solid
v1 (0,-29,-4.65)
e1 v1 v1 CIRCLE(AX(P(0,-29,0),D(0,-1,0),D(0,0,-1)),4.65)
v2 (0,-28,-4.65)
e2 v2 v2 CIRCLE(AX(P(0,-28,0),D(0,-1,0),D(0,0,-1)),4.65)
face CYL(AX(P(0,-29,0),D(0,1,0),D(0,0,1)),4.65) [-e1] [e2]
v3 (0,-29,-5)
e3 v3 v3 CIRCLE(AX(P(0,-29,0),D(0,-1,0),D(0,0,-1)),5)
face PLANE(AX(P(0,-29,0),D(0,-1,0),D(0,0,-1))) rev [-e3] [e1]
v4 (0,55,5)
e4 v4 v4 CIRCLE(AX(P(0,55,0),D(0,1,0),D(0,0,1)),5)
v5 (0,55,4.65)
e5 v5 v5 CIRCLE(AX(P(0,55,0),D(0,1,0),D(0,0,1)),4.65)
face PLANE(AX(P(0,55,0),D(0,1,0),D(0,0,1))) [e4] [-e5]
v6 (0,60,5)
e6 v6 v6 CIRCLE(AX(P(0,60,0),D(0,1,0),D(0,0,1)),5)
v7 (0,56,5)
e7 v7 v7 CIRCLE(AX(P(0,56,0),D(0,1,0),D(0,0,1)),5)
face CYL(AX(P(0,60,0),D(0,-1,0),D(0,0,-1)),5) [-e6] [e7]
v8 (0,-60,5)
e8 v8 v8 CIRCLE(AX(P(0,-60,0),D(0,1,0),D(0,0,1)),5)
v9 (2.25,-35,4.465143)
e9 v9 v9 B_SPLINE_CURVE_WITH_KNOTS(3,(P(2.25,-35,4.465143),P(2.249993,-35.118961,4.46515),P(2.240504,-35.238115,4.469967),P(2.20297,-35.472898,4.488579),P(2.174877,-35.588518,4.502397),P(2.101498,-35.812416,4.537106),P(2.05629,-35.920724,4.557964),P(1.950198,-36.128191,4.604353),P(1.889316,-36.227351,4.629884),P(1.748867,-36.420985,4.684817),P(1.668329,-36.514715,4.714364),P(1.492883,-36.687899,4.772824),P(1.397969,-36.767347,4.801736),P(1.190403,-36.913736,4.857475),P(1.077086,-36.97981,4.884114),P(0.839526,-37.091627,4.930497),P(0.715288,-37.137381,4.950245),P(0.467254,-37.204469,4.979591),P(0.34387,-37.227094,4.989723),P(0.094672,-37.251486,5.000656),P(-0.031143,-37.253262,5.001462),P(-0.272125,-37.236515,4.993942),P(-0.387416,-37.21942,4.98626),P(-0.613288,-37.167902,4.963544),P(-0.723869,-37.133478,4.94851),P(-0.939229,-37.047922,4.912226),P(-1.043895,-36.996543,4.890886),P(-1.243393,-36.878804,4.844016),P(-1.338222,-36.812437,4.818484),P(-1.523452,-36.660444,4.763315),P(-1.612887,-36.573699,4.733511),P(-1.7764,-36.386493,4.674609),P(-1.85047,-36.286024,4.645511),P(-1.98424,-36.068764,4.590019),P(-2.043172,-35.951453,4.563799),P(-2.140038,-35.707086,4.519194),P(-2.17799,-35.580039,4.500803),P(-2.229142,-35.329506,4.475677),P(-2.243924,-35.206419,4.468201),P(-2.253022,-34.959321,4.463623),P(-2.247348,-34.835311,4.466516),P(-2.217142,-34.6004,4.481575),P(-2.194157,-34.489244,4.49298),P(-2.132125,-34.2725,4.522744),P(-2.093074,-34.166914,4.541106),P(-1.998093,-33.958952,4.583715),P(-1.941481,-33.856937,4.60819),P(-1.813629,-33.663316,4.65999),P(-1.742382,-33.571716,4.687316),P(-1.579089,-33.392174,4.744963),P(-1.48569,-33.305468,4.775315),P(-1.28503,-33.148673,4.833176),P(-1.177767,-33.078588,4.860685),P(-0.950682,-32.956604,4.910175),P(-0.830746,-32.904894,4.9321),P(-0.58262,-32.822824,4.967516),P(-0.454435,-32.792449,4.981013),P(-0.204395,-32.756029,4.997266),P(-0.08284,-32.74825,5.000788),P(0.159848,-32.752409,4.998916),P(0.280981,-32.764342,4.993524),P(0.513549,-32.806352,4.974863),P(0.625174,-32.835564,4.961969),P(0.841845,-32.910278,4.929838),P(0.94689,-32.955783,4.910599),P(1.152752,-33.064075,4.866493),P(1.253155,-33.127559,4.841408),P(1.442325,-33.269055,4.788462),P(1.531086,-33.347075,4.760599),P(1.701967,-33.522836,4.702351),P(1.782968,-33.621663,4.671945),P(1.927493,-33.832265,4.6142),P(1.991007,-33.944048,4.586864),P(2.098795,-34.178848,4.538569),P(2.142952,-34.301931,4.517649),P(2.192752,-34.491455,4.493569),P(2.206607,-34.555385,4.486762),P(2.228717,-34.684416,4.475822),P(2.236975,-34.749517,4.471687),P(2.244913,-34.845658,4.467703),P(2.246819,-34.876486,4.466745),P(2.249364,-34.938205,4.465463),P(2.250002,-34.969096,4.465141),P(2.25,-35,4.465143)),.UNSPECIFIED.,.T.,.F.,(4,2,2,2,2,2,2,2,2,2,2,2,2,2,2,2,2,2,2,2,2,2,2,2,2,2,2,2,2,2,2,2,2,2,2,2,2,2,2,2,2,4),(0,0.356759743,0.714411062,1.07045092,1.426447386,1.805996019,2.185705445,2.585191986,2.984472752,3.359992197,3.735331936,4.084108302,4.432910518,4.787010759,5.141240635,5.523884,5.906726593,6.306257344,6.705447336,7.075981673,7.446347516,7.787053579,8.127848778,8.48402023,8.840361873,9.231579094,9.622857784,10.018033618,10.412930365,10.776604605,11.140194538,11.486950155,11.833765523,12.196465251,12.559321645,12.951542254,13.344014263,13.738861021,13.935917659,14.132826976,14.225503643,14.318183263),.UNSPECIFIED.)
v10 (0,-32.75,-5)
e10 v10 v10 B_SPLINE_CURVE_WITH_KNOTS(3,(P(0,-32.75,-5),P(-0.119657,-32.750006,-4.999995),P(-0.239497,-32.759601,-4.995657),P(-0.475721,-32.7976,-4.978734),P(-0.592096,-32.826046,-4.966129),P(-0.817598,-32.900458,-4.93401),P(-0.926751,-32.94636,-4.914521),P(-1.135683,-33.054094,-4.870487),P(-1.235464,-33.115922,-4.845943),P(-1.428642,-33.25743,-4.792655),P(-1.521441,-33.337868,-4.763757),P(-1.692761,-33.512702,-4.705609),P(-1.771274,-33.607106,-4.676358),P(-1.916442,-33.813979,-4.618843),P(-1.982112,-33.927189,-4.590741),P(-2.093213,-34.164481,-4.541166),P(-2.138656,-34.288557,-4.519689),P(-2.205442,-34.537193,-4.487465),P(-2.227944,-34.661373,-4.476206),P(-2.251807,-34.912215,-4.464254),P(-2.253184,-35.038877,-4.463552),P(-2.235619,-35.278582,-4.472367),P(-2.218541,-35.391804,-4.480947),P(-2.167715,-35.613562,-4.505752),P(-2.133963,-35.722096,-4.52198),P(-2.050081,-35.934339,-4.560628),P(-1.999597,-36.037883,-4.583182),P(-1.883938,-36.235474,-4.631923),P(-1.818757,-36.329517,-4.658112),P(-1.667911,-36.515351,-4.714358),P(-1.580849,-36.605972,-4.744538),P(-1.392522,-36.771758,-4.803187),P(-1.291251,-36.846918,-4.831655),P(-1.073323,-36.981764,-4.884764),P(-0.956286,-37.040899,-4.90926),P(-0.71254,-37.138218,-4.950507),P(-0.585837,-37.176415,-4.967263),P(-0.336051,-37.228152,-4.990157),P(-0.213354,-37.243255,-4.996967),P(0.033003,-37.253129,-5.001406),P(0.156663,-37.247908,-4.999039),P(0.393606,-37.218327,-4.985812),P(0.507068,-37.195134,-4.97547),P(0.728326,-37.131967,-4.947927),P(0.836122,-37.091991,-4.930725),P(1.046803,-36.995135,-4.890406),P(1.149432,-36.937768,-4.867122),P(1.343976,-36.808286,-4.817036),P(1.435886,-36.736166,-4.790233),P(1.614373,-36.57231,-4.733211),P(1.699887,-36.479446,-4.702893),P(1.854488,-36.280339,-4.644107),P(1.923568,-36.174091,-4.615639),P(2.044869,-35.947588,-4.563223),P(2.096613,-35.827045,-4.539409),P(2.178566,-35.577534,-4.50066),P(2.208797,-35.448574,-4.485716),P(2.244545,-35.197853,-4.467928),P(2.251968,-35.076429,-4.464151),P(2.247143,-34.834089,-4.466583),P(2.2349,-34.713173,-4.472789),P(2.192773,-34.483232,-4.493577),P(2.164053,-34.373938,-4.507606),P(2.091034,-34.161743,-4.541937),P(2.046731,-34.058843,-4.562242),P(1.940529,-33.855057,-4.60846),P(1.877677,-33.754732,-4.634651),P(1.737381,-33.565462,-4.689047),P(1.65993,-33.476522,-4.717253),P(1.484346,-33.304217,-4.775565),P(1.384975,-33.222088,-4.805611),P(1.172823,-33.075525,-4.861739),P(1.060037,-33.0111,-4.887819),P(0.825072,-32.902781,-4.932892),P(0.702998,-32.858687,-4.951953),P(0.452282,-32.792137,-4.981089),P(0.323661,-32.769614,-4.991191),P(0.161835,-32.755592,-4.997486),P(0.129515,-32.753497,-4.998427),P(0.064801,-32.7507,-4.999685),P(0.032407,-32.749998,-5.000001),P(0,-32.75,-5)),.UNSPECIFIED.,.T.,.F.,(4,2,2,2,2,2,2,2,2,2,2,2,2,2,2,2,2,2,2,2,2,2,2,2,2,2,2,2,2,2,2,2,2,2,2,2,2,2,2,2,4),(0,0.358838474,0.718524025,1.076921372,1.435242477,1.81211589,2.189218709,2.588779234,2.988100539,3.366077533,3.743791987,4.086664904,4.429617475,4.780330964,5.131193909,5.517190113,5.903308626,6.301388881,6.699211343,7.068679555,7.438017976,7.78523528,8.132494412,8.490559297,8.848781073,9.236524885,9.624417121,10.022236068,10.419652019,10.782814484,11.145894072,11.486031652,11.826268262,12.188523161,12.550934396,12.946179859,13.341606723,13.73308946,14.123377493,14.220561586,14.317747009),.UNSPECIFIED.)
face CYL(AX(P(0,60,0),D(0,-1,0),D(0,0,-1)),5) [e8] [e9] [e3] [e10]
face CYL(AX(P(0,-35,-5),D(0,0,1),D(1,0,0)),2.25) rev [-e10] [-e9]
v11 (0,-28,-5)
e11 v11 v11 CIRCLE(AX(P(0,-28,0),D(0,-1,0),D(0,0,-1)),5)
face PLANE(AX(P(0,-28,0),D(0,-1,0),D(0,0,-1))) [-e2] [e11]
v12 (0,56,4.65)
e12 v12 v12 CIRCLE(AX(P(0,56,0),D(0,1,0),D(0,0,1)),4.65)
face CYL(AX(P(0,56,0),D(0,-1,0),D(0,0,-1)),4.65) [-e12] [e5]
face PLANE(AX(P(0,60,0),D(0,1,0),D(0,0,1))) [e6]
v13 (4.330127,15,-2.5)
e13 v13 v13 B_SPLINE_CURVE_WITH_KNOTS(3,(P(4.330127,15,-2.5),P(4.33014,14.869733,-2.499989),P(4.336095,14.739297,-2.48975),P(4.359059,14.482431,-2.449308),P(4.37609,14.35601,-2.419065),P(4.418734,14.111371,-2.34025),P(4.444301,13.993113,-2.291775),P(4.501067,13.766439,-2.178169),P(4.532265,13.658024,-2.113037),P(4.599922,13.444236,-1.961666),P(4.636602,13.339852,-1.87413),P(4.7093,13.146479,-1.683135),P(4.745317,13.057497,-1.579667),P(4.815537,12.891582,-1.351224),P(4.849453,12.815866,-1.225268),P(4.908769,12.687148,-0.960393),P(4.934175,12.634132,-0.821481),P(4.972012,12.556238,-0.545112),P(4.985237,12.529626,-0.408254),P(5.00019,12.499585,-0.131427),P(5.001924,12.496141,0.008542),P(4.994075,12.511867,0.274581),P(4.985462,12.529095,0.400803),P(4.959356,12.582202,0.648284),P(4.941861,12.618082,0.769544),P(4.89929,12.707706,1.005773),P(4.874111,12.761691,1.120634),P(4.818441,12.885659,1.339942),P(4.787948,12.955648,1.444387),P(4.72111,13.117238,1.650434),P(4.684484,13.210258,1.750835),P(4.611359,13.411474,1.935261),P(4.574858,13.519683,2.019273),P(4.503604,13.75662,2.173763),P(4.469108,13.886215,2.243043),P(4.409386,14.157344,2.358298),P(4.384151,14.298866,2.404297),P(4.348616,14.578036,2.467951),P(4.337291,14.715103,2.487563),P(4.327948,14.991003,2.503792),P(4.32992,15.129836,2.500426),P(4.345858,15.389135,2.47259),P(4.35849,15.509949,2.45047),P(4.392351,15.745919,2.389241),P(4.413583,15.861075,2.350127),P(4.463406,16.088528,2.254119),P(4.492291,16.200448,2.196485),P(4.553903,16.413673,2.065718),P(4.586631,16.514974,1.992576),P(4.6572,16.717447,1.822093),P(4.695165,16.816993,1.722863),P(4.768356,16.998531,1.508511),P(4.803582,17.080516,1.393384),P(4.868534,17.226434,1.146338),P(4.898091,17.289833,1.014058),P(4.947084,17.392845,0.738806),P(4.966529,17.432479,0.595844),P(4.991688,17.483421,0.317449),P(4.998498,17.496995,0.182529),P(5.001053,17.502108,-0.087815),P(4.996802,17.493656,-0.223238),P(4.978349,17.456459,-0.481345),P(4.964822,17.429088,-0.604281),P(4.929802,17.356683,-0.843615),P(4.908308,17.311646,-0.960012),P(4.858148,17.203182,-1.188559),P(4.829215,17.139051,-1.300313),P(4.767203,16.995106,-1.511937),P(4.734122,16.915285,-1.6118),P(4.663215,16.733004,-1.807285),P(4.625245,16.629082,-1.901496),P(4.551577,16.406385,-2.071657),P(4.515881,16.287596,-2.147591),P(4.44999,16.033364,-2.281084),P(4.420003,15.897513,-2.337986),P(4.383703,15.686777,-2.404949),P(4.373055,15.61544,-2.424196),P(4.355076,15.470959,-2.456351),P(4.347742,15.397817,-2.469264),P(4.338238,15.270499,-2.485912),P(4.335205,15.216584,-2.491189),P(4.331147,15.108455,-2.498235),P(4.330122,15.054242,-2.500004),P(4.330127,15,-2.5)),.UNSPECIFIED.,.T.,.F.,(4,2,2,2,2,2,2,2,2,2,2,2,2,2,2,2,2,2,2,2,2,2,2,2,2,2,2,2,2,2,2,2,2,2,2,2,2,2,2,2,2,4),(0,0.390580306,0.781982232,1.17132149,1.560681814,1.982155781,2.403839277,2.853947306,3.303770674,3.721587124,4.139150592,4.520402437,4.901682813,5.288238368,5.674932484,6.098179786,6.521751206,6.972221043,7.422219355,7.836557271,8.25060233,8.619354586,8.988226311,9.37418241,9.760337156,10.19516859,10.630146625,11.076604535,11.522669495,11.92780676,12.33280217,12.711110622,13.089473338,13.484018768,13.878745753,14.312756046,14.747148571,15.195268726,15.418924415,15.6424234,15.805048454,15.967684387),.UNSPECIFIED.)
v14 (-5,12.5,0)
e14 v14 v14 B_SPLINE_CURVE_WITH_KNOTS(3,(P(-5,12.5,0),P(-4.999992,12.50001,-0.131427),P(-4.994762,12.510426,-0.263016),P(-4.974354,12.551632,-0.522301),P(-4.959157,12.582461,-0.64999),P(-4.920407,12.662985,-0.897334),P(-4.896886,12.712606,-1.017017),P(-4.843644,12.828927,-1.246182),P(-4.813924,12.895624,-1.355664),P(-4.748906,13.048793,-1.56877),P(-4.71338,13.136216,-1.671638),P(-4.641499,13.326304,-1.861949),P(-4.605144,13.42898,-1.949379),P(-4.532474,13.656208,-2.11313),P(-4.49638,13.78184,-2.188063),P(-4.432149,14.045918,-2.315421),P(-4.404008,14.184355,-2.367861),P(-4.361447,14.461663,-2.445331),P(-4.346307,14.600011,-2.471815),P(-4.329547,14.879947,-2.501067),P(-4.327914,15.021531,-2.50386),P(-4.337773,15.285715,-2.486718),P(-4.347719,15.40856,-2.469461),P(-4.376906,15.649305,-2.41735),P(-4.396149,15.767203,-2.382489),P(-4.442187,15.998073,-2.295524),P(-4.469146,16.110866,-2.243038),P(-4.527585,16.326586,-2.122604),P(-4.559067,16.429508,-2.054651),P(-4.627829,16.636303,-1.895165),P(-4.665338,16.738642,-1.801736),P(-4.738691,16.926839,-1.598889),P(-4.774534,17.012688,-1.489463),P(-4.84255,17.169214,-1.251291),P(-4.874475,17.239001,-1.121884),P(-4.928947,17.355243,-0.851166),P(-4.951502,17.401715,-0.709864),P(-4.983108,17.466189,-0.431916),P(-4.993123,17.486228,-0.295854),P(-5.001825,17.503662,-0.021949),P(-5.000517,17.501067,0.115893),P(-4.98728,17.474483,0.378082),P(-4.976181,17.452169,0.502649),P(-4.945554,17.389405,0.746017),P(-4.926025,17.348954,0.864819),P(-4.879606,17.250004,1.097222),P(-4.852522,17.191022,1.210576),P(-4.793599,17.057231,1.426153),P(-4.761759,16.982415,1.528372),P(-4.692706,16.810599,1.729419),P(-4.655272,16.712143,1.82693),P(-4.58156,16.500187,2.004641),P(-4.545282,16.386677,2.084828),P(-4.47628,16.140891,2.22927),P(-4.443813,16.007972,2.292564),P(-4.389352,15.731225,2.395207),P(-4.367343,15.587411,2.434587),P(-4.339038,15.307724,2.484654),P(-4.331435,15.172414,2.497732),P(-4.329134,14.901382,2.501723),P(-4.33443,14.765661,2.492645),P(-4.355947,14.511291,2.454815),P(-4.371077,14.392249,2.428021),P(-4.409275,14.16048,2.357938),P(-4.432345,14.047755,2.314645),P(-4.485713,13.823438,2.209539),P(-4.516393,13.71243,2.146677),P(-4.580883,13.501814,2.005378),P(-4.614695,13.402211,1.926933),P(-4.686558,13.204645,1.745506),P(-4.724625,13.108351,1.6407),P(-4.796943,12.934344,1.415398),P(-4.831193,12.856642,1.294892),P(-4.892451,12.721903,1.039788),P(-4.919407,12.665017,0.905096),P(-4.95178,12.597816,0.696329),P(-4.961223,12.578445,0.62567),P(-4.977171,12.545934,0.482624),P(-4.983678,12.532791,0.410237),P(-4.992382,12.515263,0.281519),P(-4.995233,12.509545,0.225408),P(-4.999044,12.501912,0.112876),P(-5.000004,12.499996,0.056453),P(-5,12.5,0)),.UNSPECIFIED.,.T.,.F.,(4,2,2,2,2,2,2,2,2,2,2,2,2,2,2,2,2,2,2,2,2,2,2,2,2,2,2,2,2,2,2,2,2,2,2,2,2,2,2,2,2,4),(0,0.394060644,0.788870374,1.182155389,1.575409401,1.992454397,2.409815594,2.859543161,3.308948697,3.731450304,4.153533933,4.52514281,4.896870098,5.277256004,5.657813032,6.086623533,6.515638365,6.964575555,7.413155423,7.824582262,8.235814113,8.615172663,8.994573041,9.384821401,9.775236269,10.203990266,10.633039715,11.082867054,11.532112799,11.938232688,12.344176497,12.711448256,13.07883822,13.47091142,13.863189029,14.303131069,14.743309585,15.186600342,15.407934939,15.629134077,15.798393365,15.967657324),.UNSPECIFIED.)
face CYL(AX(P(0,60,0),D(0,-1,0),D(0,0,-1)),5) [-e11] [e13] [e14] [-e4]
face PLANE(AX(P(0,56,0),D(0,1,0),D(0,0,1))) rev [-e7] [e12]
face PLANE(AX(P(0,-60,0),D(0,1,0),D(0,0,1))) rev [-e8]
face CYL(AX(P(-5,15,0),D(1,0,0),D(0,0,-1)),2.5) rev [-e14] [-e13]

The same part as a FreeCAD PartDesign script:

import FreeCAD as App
import Part
import Sketcher
from FreeCAD import Vector
Q = App.Units.Quantity

doc = App.newDocument("Part")
body = doc.addObject("PartDesign::Body", "Body")

# Sketch on XZ plane
sketch1 = body.newObject("Sketcher::SketchObject", "Sketch")
sketch1.AttachmentSupport = (doc.getObject("XZ_Plane"), [""])
sketch1.MapMode = "FlatFace"
sketch1.addGeometry(Part.Circle(Vector(0, 0, 0), Vector(0, 0, 1), 5), False)
sketch1.addConstraint(Sketcher.Constraint("Coincident", 0, 3, -1, 1))
sketch1.addConstraint(Sketcher.Constraint("Diameter", 0, Q("10 mm")))
pad1 = body.newObject("PartDesign::Pad", "Pad")
pad1.Profile = sketch1
pad1.Length = 120
pad1.Midplane = True

# Sketch on XY plane
sketch2 = body.newObject("Sketcher::SketchObject", "Sketch001")
sketch2.AttachmentSupport = (doc.getObject("XY_Plane"), [""])
sketch2.MapMode = "FlatFace"
sketch2.addGeometry(Part.Circle(Vector(0, -35, 0), Vector(0, 0, 1), 2.25), False)
sketch2.addConstraint(Sketcher.Constraint("PointOnObject", 0, 3, -2))
sketch2.addConstraint(Sketcher.Constraint("Diameter", 0, Q("4.5 mm")))
sketch2.addConstraint(Sketcher.Constraint("DistanceY", 0, 3, -1, 1, Q("35 mm")))
pocket1 = body.newObject("PartDesign::Pocket", "Pocket")
pocket1.Profile = sketch2
pocket1.Type = "ThroughAll"
pocket1.Midplane = True

# Sketch on XZ plane
sketch3 = body.newObject("Sketcher::SketchObject", "Sketch002")
sketch3.AttachmentSupport = (doc.getObject("XZ_Plane"), [""])
sketch3.MapMode = "FlatFace"
sketch3.AttachmentOffset = App.Placement(Vector(0, 0, 28), App.Rotation())
sketch3.addGeometry(Part.Circle(Vector(0, 0, 0), Vector(0, 0, 1), 5), False)
sketch3.addGeometry(Part.Circle(Vector(0, 0, 0), Vector(0, 0, 1), 4.65), False)
sketch3.addConstraint(Sketcher.Constraint("Coincident", 0, 3, -1, 1))
sketch3.addConstraint(Sketcher.Constraint("Coincident", 1, 3, -1, 1))
sketch3.addConstraint(Sketcher.Constraint("Diameter", 0, Q("10 mm")))
sketch3.addConstraint(Sketcher.Constraint("Diameter", 1, Q("9.3 mm")))
pocket2 = body.newObject("PartDesign::Pocket", "Pocket001")
pocket2.Profile = sketch3
pocket2.Length = 1
pocket2.Reversed = True

# Sketch on XZ plane
sketch4 = body.newObject("Sketcher::SketchObject", "Sketch003")
sketch4.AttachmentSupport = (doc.getObject("XZ_Plane"), [""])
sketch4.MapMode = "FlatFace"
sketch4.AttachmentOffset = App.Placement(Vector(0, 0, -56), App.Rotation())
sketch4.addGeometry(Part.Circle(Vector(0, 0, 0), Vector(0, 0, 1), 5), False)
sketch4.addGeometry(Part.Circle(Vector(0, 0, 0), Vector(0, 0, 1), 4.65), False)
sketch4.addConstraint(Sketcher.Constraint("Coincident", 0, 3, -1, 1))
sketch4.addConstraint(Sketcher.Constraint("Coincident", 1, 3, -1, 1))
sketch4.addConstraint(Sketcher.Constraint("Diameter", 0, Q("10 mm")))
sketch4.addConstraint(Sketcher.Constraint("Diameter", 1, Q("9.3 mm")))
pocket3 = body.newObject("PartDesign::Pocket", "Pocket002")
pocket3.Profile = sketch4
pocket3.Length = 1
pocket3.Reversed = True

# Sketch on YZ plane
sketch5 = body.newObject("Sketcher::SketchObject", "Sketch004")
sketch5.AttachmentSupport = (doc.getObject("YZ_Plane"), [""])
sketch5.MapMode = "FlatFace"
sketch5.addGeometry(Part.Circle(Vector(15, 0, 0), Vector(0, 0, 1), 2.5), False)
sketch5.addConstraint(Sketcher.Constraint("PointOnObject", 0, 3, -1))
sketch5.addConstraint(Sketcher.Constraint("Diameter", 0, Q("5 mm")))
sketch5.addConstraint(Sketcher.Constraint("DistanceX", -1, 1, 0, 3, Q("15 mm")))
pocket4 = body.newObject("PartDesign::Pocket", "Pocket003")
pocket4.Profile = sketch5
pocket4.Type = "ThroughAll"
pocket4.Midplane = True

doc.recompute()
